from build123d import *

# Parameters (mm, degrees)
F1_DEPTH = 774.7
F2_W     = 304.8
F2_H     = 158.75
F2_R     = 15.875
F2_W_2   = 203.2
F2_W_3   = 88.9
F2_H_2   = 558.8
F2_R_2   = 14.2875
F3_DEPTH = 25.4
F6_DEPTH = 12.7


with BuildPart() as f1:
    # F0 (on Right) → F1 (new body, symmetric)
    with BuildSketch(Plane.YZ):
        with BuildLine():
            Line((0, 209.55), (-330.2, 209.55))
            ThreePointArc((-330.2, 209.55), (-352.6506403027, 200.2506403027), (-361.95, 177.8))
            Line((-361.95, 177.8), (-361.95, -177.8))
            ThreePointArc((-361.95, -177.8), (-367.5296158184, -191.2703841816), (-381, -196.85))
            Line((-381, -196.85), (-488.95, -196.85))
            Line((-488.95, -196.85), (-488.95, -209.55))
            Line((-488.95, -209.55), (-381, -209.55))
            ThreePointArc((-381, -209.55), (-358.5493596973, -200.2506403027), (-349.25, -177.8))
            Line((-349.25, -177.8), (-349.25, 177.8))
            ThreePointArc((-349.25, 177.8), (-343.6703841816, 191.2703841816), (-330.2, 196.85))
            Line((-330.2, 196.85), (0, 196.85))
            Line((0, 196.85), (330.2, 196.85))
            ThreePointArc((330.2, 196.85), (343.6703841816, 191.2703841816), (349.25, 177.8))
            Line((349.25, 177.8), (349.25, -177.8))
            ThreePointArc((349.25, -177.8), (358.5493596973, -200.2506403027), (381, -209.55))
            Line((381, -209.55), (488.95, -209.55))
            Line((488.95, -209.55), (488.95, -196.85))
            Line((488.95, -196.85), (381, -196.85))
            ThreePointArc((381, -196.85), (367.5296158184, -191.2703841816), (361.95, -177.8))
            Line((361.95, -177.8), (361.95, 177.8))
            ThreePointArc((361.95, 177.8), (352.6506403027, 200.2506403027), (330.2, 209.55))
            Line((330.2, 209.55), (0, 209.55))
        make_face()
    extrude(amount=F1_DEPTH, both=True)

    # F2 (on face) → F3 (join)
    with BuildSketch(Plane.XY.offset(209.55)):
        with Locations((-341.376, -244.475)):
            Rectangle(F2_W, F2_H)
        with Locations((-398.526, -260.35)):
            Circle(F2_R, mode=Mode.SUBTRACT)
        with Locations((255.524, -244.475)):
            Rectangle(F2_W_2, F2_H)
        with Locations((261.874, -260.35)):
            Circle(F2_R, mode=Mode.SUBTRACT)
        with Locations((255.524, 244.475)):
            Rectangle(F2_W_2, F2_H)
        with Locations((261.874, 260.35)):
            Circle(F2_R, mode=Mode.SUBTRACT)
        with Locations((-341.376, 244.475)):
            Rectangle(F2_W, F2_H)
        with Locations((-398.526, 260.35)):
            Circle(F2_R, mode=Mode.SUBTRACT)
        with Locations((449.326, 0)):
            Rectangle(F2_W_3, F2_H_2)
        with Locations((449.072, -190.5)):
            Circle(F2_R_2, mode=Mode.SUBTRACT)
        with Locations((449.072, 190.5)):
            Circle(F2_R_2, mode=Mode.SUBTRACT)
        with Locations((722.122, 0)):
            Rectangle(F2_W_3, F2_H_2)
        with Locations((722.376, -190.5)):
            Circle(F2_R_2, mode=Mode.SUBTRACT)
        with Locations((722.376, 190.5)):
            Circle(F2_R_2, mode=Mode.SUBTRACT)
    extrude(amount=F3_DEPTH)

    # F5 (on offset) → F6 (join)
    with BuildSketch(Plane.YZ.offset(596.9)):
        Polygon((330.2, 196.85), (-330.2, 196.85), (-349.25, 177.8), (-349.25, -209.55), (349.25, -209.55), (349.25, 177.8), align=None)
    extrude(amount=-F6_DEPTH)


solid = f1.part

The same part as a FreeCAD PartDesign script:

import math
import FreeCAD as App
import Part
import Sketcher
from FreeCAD import Vector
Q = App.Units.Quantity


def add_polygon(sketch, points):
    """Adds a closed chain of lines whose ends are joined by coincident constraints."""
    first, n = sketch.GeometryCount, len(points)
    for a, b in zip(points, points[1:] + points[:1]):
        sketch.addGeometry(Part.LineSegment(App.Vector(*a, 0), App.Vector(*b, 0)), False)
    for i in range(n):
        sketch.addConstraint(Sketcher.Constraint("Coincident", first + i, 2, first + (i + 1) % n, 1))

doc = App.newDocument("Part")
body = doc.addObject("PartDesign::Body", "Body")

# Sketch on YZ plane
sketch1 = body.newObject("Sketcher::SketchObject", "Sketch")
sketch1.AttachmentSupport = (doc.getObject("YZ_Plane"), [""])
sketch1.MapMode = "FlatFace"
sketch1.addGeometry(Part.ArcOfCircle(Part.Circle(Vector(-330, 178, 0), Vector(0, 0, 1), 32), math.radians(90), math.radians(180)), False)
sketch1.addGeometry(Part.LineSegment(Vector(-362, 178, 0), Vector(-362, -178, 0)), False)
sketch1.addGeometry(Part.ArcOfCircle(Part.Circle(Vector(-381, -178, 0), Vector(0, 0, 1), 19), math.radians(-90), math.radians(0)), False)
sketch1.addGeometry(Part.LineSegment(Vector(-381, -197, 0), Vector(-489, -197, 0)), False)
sketch1.addGeometry(Part.LineSegment(Vector(-489, -197, 0), Vector(-489, -210, 0)), False)
sketch1.addGeometry(Part.LineSegment(Vector(-489, -210, 0), Vector(-381, -210, 0)), False)
sketch1.addGeometry(Part.ArcOfCircle(Part.Circle(Vector(-381, -178, 0), Vector(0, 0, 1), 32), math.radians(-90), math.radians(0)), False)
sketch1.addGeometry(Part.LineSegment(Vector(-349, -178, 0), Vector(-349, 178, 0)), False)
sketch1.addGeometry(Part.ArcOfCircle(Part.Circle(Vector(-330, 178, 0), Vector(0, 0, 1), 19), math.radians(90), math.radians(180)), False)
sketch1.addGeometry(Part.LineSegment(Vector(-330, 197, 0), Vector(330, 197, 0)), False)
sketch1.addGeometry(Part.ArcOfCircle(Part.Circle(Vector(330, 178, 0), Vector(0, 0, 1), 19), math.radians(0), math.radians(90)), False)
sketch1.addGeometry(Part.LineSegment(Vector(349, 178, 0), Vector(349, -178, 0)), False)
sketch1.addGeometry(Part.ArcOfCircle(Part.Circle(Vector(381, -178, 0), Vector(0, 0, 1), 32), math.radians(180), math.radians(270)), False)
sketch1.addGeometry(Part.LineSegment(Vector(381, -210, 0), Vector(489, -210, 0)), False)
sketch1.addGeometry(Part.LineSegment(Vector(489, -210, 0), Vector(489, -197, 0)), False)
sketch1.addGeometry(Part.LineSegment(Vector(489, -197, 0), Vector(381, -197, 0)), False)
sketch1.addGeometry(Part.ArcOfCircle(Part.Circle(Vector(381, -178, 0), Vector(0, 0, 1), 19), math.radians(180), math.radians(270)), False)
sketch1.addGeometry(Part.LineSegment(Vector(362, -178, 0), Vector(362, 178, 0)), False)
sketch1.addGeometry(Part.ArcOfCircle(Part.Circle(Vector(330, 178, 0), Vector(0, 0, 1), 32), math.radians(0), math.radians(90)), False)
sketch1.addGeometry(Part.LineSegment(Vector(330, 210, 0), Vector(-330, 210, 0)), False)
sketch1.addConstraint(Sketcher.Constraint("Tangent", 0, 2, 1, 1))
sketch1.addConstraint(Sketcher.Constraint("Tangent", 1, 2, 2, 2))
sketch1.addConstraint(Sketcher.Constraint("Tangent", 2, 1, 3, 1))
sketch1.addConstraint(Sketcher.Constraint("Coincident", 3, 2, 4, 1))
sketch1.addConstraint(Sketcher.Constraint("Coincident", 4, 2, 5, 1))
sketch1.addConstraint(Sketcher.Constraint("Tangent", 5, 2, 6, 1))
sketch1.addConstraint(Sketcher.Constraint("Tangent", 6, 2, 7, 1))
sketch1.addConstraint(Sketcher.Constraint("Tangent", 7, 2, 8, 2))
sketch1.addConstraint(Sketcher.Constraint("Tangent", 8, 1, 9, 1))
sketch1.addConstraint(Sketcher.Constraint("Tangent", 9, 2, 10, 2))
sketch1.addConstraint(Sketcher.Constraint("Tangent", 10, 1, 11, 1))
sketch1.addConstraint(Sketcher.Constraint("Tangent", 11, 2, 12, 1))
sketch1.addConstraint(Sketcher.Constraint("Tangent", 12, 2, 13, 1))
sketch1.addConstraint(Sketcher.Constraint("Coincident", 13, 2, 14, 1))
sketch1.addConstraint(Sketcher.Constraint("Coincident", 14, 2, 15, 1))
sketch1.addConstraint(Sketcher.Constraint("Tangent", 15, 2, 16, 2))
sketch1.addConstraint(Sketcher.Constraint("Tangent", 16, 1, 17, 1))
sketch1.addConstraint(Sketcher.Constraint("Tangent", 17, 2, 18, 1))
sketch1.addConstraint(Sketcher.Constraint("Tangent", 18, 2, 19, 1))
sketch1.addConstraint(Sketcher.Constraint("Tangent", 19, 2, 0, 1))
sketch1.addConstraint(Sketcher.Constraint("Vertical", 1))
sketch1.addConstraint(Sketcher.Constraint("Horizontal", 3))
sketch1.addConstraint(Sketcher.Constraint("Vertical", 4))
sketch1.addConstraint(Sketcher.Constraint("Horizontal", 5))
sketch1.addConstraint(Sketcher.Constraint("Vertical", 7))
sketch1.addConstraint(Sketcher.Constraint("Horizontal", 9))
sketch1.addConstraint(Sketcher.Constraint("Vertical", 11))
sketch1.addConstraint(Sketcher.Constraint("Horizontal", 13))
sketch1.addConstraint(Sketcher.Constraint("Vertical", 14))
sketch1.addConstraint(Sketcher.Constraint("Horizontal", 15))
sketch1.addConstraint(Sketcher.Constraint("Vertical", 17))
sketch1.addConstraint(Sketcher.Constraint("Horizontal", 19))
sketch1.addConstraint(Sketcher.Constraint("Coincident", 6, 3, 2, 3))
sketch1.addConstraint(Sketcher.Constraint("Coincident", 8, 3, 0, 3))
sketch1.addConstraint(Sketcher.Constraint("Coincident", 16, 3, 12, 3))
sketch1.addConstraint(Sketcher.Constraint("Coincident", 18, 3, 10, 3))
sketch1.addConstraint(Sketcher.Constraint("Equal", 0, 6))
sketch1.addConstraint(Sketcher.Constraint("Equal", 8, 10))
sketch1.addConstraint(Sketcher.Constraint("Equal", 6, 12))
sketch1.addConstraint(Sketcher.Constraint("Symmetric", 6, 2, 10, 1, -1, 1))
sketch1.addConstraint(Sketcher.Constraint("Symmetric", 4, 2, 13, 2, -2))
sketch1.addConstraint(Sketcher.Constraint("DistanceX", 9, 1, 9, 2, Q("26 in")))
sketch1.addConstraint(Sketcher.Constraint("DistanceY", 1, 2, 1, 1, Q("14 in")))
sketch1.addConstraint(Sketcher.Constraint("Radius", 0, Q("1.25 in")))
sketch1.addConstraint(Sketcher.Constraint("Radius", 2, Q("0.75 in")))
sketch1.addConstraint(Sketcher.Constraint("DistanceX", 3, 2, 1, 2, Q("5 in")))
pad1 = body.newObject("PartDesign::Pad", "Pad")
pad1.Profile = sketch1
pad1.Length = Q("61 in")
pad1.Midplane = True

# Sketch on XY plane
sketch2 = body.newObject("Sketcher::SketchObject", "Sketch001")
sketch2.AttachmentSupport = (doc.getObject("XY_Plane"), [""])
sketch2.MapMode = "FlatFace"
sketch2.AttachmentOffset = App.Placement(Vector(0, 0, 8.25 * 25.4), App.Rotation())
add_polygon(sketch2, [(-494, -165), (-494, -324), (-189, -324), (-189, -165)])  # lines 0-3
sketch2.addGeometry(Part.Circle(Vector(-399, -260, 0), Vector(0, 0, 1), 16), False)  # 4
add_polygon(sketch2, [(154, -165), (154, -324), (357, -324), (357, -165)])  # lines 5-8
sketch2.addGeometry(Part.Circle(Vector(262, -260, 0), Vector(0, 0, 1), 16), False)  # 9
add_polygon(sketch2, [(154, 324), (154, 165), (357, 165), (357, 324)])  # lines 10-13
sketch2.addGeometry(Part.Circle(Vector(262, 260, 0), Vector(0, 0, 1), 16), False)  # 14
add_polygon(sketch2, [(-494, 324), (-494, 165), (-189, 165), (-189, 324)])  # lines 15-18
sketch2.addGeometry(Part.Circle(Vector(-399, 260, 0), Vector(0, 0, 1), 16), False)  # 19
add_polygon(sketch2, [(405, 279), (405, -279), (494, -279), (494, 279)])  # lines 20-23
sketch2.addGeometry(Part.Circle(Vector(449, -190, 0), Vector(0, 0, 1), 14), False)  # 24
sketch2.addGeometry(Part.Circle(Vector(449, 190, 0), Vector(0, 0, 1), 14), False)  # 25
add_polygon(sketch2, [(678, 279), (678, -279), (767, -279), (767, 279)])  # lines 26-29
sketch2.addGeometry(Part.Circle(Vector(722, -190, 0), Vector(0, 0, 1), 14), False)  # 30
sketch2.addGeometry(Part.Circle(Vector(722, 190, 0), Vector(0, 0, 1), 14), False)  # 31
sketch2.addConstraint(Sketcher.Constraint("Vertical", 0))
sketch2.addConstraint(Sketcher.Constraint("Horizontal", 1))
sketch2.addConstraint(Sketcher.Constraint("Vertical", 2))
sketch2.addConstraint(Sketcher.Constraint("Horizontal", 3))
sketch2.addConstraint(Sketcher.Constraint("Vertical", 5))
sketch2.addConstraint(Sketcher.Constraint("Horizontal", 6))
sketch2.addConstraint(Sketcher.Constraint("Vertical", 7))
sketch2.addConstraint(Sketcher.Constraint("Horizontal", 8))
sketch2.addConstraint(Sketcher.Constraint("Vertical", 10))
sketch2.addConstraint(Sketcher.Constraint("Horizontal", 11))
sketch2.addConstraint(Sketcher.Constraint("Vertical", 12))
sketch2.addConstraint(Sketcher.Constraint("Horizontal", 13))
sketch2.addConstraint(Sketcher.Constraint("Vertical", 15))
sketch2.addConstraint(Sketcher.Constraint("Horizontal", 16))
sketch2.addConstraint(Sketcher.Constraint("Vertical", 17))
sketch2.addConstraint(Sketcher.Constraint("Horizontal", 18))
sketch2.addConstraint(Sketcher.Constraint("Vertical", 20))
sketch2.addConstraint(Sketcher.Constraint("Horizontal", 21))
sketch2.addConstraint(Sketcher.Constraint("Vertical", 22))
sketch2.addConstraint(Sketcher.Constraint("Horizontal", 23))
sketch2.addConstraint(Sketcher.Constraint("Vertical", 26))
sketch2.addConstraint(Sketcher.Constraint("Horizontal", 27))
sketch2.addConstraint(Sketcher.Constraint("Vertical", 28))
sketch2.addConstraint(Sketcher.Constraint("Horizontal", 29))
sketch2.addConstraint(Sketcher.Constraint("Equal", 4, 9))
sketch2.addConstraint(Sketcher.Constraint("Equal", 9, 14))
sketch2.addConstraint(Sketcher.Constraint("Equal", 14, 19))
sketch2.addConstraint(Sketcher.Constraint("Equal", 24, 25))
sketch2.addConstraint(Sketcher.Constraint("Equal", 25, 30))
sketch2.addConstraint(Sketcher.Constraint("Equal", 30, 31))
sketch2.addConstraint(Sketcher.Constraint("Symmetric", 9, 3, 14, 3, -1))
sketch2.addConstraint(Sketcher.Constraint("Symmetric", 4, 3, 19, 3, -1))
sketch2.addConstraint(Sketcher.Constraint("Symmetric", 24, 3, 25, 3, -1))
sketch2.addConstraint(Sketcher.Constraint("Symmetric", 30, 3, 31, 3, -1))
sketch2.addConstraint(Sketcher.Constraint("Symmetric", 8, 2, 10, 2, -1))
sketch2.addConstraint(Sketcher.Constraint("Symmetric", 6, 2, 12, 2, -1))
sketch2.addConstraint(Sketcher.Constraint("Symmetric", 3, 2, 15, 2, -1))
sketch2.addConstraint(Sketcher.Constraint("Symmetric", 1, 2, 17, 2, -1))
sketch2.addConstraint(Sketcher.Constraint("Horizontal", 4, 3, 9, 3))
sketch2.addConstraint(Sketcher.Constraint("Horizontal", 24, 3, 30, 3))
sketch2.addConstraint(Sketcher.Constraint("Horizontal", 1, 2, 5, 2))
sketch2.addConstraint(Sketcher.Constraint("Horizontal", 3, 2, 7, 2))
sketch2.addConstraint(Sketcher.Constraint("Horizontal", 21, 2, 26, 2))
sketch2.addConstraint(Sketcher.Constraint("Horizontal", 23, 2, 28, 2))
sketch2.addConstraint(Sketcher.Constraint("Equal", 23, 27))
sketch2.addConstraint(Sketcher.Constraint("Diameter", 4, Q("1.25 in")))
sketch2.addConstraint(Sketcher.Constraint("DistanceX", 1, 1, 1, 2, Q("12 in")))
sketch2.addConstraint(Sketcher.Constraint("DistanceX", 6, 1, 6, 2, Q("8 in")))
sketch2.addConstraint(Sketcher.Constraint("DistanceY", 20, 2, 20, 1, Q("22 in")))
sketch2.addConstraint(Sketcher.Constraint("Diameter", 24, Q("1.125 in")))
sketch2.addConstraint(Sketcher.Constraint("DistanceX", 21, 1, 21, 2, Q("3.5 in")))
sketch2.addConstraint(Sketcher.Constraint("DistanceY", 20, 2, -1, 1, Q("11 in")))
sketch2.addConstraint(Sketcher.Constraint("DistanceX", 4, 3, 9, 3, Q("26 in")))
sketch2.addConstraint(Sketcher.Constraint("DistanceY", 24, 3, 25, 3, Q("15 in")))
sketch2.addConstraint(Sketcher.Constraint("DistanceY", 0, 2, 19, 3, Q("23 in")))
sketch2.addConstraint(Sketcher.Constraint("DistanceY", 24, 3, 7, 2, Q("1 in")))
sketch2.addConstraint(Sketcher.Constraint("DistanceX", 22, 2, 31, 3, Q("9 in")))
sketch2.addConstraint(Sketcher.Constraint("DistanceX", 24, 3, 26, 2, Q("9 in")))
sketch2.addConstraint(Sketcher.Constraint("DistanceY", 0, 2, 0, 1, Q("6.25 in")))
sketch2.addConstraint(Sketcher.Constraint("DistanceX", 1, 2, 5, 2, Q("13.5 in")))
sketch2.addConstraint(Sketcher.Constraint("DistanceX", 4, 3, -1, 1, Q("15.69 in")))
sketch2.addConstraint(Sketcher.Constraint("DistanceX", -1, 1, 24, 3, Q("17.68 in")))
sketch2.addConstraint(Sketcher.Constraint("DistanceX", -1, 1, 30, 3, Q("28.44 in")))
sketch2.addConstraint(Sketcher.Constraint("DistanceX", 0, 2, -1, 1, Q("19.44 in")))
pad2 = body.newObject("PartDesign::Pad", "Pad001")
pad2.Profile = sketch2
pad2.Length = Q("1 in")

# Sketch on YZ plane
sketch3 = body.newObject("Sketcher::SketchObject", "Sketch002")
sketch3.AttachmentSupport = (doc.getObject("YZ_Plane"), [""])
sketch3.MapMode = "FlatFace"
sketch3.AttachmentOffset = App.Placement(Vector(0, 0, 23.5 * 25.4), App.Rotation())
add_polygon(sketch3, [(330, 197), (-330, 197), (-349, 178), (-349, -210), (349, -210), (349, 178)])  # lines 0-5
sketch3.addConstraint(Sketcher.Constraint("Horizontal", 0))
sketch3.addConstraint(Sketcher.Constraint("Vertical", 2))
sketch3.addConstraint(Sketcher.Constraint("Horizontal", 3))
sketch3.addConstraint(Sketcher.Constraint("Vertical", 4))
sketch3.addConstraint(Sketcher.Constraint("Symmetric", 1, 2, 4, 2, -2))
sketch3.addConstraint(Sketcher.Constraint("Perpendicular", 1, 5))
sketch3.addConstraint(Sketcher.Constraint("Equal", 1, 5))
sketch3.addConstraint(Sketcher.Constraint("DistanceX", 0, 2, 0, 1, Q("26 in")))
sketch3.addConstraint(Sketcher.Constraint("DistanceX", 3, 1, 3, 2, Q("27.5 in")))
sketch3.addConstraint(Sketcher.Constraint("DistanceY", -1, 1, 1, 2, Q("7 in")))
sketch3.addConstraint(Sketcher.Constraint("DistanceY", 2, 2, 0, 2, Q("16 in")))
pad3 = body.newObject("PartDesign::Pad", "Pad002")
pad3.Profile = sketch3
pad3.Length = Q("0.5 in")
pad3.Reversed = True

doc.recompute()
